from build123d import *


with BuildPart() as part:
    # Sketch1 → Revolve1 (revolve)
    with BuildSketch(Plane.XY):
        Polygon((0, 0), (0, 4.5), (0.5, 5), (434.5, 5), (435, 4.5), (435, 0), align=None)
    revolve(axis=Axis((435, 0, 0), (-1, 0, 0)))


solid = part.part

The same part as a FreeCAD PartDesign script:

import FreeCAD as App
import Part
import Sketcher
from FreeCAD import Vector

doc = App.newDocument("Part")
body = doc.addObject("PartDesign::Body", "Body")

sketch1 = body.newObject("Sketcher::SketchObject", "Sketch")
sketch1.AttachmentSupport = (doc.getObject("XY_Plane"), [""])
sketch1.MapMode = "FlatFace"
sketch1.addGeometry([
    Part.LineSegment(Vector(0, 4.5, 0), Vector(0, 0, 0)),
    Part.LineSegment(Vector(0, 0, 0), Vector(435, 0, 0)),
    Part.LineSegment(Vector(435, 0, 0), Vector(435, 4.5, 0)),
    Part.LineSegment(Vector(435, 4.5, 0), Vector(434.5, 5, 0)),
    Part.LineSegment(Vector(434.5, 5, 0), Vector(0.5, 5, 0)),
    Part.LineSegment(Vector(0.5, 5, 0), Vector(0, 4.5, 0)),
], False)
sketch1.addConstraint([
    Sketcher.Constraint("Coincident", 0, 2, 1, 1),
    Sketcher.Constraint("Coincident", 1, 2, 2, 1),
    Sketcher.Constraint("Coincident", 2, 2, 3, 1),
    Sketcher.Constraint("Coincident", 3, 2, 4, 1),
    Sketcher.Constraint("Coincident", 4, 2, 5, 1),
    Sketcher.Constraint("Coincident", 5, 2, 0, 1),
    Sketcher.Constraint("Vertical", 0),
    Sketcher.Constraint("Horizontal", 1),
    Sketcher.Constraint("Vertical", 2),
    Sketcher.Constraint("Horizontal", 4),
    Sketcher.Constraint("Coincident", 0, 2, -1, 1),
    Sketcher.Constraint("Perpendicular", 3, 5),
    Sketcher.Constraint("Horizontal", 2, 2, 5, 2),
    Sketcher.Constraint("Equal", 3, 5),
    Sketcher.Constraint("DistanceX", 1, 1, 1, 2, 435.0),
    Sketcher.Constraint("DistanceX", 4, 2, 4, 1, 434.0),
    Sketcher.Constraint("DistanceY", 0, 2, 0, 1, 4.5),
])
revolution = body.newObject("PartDesign::Revolution", "Revolution")
revolution.Profile = sketch1
revolution.ReferenceAxis = (sketch1, ["H_Axis"])
revolution.Angle = 360

doc.recompute()
